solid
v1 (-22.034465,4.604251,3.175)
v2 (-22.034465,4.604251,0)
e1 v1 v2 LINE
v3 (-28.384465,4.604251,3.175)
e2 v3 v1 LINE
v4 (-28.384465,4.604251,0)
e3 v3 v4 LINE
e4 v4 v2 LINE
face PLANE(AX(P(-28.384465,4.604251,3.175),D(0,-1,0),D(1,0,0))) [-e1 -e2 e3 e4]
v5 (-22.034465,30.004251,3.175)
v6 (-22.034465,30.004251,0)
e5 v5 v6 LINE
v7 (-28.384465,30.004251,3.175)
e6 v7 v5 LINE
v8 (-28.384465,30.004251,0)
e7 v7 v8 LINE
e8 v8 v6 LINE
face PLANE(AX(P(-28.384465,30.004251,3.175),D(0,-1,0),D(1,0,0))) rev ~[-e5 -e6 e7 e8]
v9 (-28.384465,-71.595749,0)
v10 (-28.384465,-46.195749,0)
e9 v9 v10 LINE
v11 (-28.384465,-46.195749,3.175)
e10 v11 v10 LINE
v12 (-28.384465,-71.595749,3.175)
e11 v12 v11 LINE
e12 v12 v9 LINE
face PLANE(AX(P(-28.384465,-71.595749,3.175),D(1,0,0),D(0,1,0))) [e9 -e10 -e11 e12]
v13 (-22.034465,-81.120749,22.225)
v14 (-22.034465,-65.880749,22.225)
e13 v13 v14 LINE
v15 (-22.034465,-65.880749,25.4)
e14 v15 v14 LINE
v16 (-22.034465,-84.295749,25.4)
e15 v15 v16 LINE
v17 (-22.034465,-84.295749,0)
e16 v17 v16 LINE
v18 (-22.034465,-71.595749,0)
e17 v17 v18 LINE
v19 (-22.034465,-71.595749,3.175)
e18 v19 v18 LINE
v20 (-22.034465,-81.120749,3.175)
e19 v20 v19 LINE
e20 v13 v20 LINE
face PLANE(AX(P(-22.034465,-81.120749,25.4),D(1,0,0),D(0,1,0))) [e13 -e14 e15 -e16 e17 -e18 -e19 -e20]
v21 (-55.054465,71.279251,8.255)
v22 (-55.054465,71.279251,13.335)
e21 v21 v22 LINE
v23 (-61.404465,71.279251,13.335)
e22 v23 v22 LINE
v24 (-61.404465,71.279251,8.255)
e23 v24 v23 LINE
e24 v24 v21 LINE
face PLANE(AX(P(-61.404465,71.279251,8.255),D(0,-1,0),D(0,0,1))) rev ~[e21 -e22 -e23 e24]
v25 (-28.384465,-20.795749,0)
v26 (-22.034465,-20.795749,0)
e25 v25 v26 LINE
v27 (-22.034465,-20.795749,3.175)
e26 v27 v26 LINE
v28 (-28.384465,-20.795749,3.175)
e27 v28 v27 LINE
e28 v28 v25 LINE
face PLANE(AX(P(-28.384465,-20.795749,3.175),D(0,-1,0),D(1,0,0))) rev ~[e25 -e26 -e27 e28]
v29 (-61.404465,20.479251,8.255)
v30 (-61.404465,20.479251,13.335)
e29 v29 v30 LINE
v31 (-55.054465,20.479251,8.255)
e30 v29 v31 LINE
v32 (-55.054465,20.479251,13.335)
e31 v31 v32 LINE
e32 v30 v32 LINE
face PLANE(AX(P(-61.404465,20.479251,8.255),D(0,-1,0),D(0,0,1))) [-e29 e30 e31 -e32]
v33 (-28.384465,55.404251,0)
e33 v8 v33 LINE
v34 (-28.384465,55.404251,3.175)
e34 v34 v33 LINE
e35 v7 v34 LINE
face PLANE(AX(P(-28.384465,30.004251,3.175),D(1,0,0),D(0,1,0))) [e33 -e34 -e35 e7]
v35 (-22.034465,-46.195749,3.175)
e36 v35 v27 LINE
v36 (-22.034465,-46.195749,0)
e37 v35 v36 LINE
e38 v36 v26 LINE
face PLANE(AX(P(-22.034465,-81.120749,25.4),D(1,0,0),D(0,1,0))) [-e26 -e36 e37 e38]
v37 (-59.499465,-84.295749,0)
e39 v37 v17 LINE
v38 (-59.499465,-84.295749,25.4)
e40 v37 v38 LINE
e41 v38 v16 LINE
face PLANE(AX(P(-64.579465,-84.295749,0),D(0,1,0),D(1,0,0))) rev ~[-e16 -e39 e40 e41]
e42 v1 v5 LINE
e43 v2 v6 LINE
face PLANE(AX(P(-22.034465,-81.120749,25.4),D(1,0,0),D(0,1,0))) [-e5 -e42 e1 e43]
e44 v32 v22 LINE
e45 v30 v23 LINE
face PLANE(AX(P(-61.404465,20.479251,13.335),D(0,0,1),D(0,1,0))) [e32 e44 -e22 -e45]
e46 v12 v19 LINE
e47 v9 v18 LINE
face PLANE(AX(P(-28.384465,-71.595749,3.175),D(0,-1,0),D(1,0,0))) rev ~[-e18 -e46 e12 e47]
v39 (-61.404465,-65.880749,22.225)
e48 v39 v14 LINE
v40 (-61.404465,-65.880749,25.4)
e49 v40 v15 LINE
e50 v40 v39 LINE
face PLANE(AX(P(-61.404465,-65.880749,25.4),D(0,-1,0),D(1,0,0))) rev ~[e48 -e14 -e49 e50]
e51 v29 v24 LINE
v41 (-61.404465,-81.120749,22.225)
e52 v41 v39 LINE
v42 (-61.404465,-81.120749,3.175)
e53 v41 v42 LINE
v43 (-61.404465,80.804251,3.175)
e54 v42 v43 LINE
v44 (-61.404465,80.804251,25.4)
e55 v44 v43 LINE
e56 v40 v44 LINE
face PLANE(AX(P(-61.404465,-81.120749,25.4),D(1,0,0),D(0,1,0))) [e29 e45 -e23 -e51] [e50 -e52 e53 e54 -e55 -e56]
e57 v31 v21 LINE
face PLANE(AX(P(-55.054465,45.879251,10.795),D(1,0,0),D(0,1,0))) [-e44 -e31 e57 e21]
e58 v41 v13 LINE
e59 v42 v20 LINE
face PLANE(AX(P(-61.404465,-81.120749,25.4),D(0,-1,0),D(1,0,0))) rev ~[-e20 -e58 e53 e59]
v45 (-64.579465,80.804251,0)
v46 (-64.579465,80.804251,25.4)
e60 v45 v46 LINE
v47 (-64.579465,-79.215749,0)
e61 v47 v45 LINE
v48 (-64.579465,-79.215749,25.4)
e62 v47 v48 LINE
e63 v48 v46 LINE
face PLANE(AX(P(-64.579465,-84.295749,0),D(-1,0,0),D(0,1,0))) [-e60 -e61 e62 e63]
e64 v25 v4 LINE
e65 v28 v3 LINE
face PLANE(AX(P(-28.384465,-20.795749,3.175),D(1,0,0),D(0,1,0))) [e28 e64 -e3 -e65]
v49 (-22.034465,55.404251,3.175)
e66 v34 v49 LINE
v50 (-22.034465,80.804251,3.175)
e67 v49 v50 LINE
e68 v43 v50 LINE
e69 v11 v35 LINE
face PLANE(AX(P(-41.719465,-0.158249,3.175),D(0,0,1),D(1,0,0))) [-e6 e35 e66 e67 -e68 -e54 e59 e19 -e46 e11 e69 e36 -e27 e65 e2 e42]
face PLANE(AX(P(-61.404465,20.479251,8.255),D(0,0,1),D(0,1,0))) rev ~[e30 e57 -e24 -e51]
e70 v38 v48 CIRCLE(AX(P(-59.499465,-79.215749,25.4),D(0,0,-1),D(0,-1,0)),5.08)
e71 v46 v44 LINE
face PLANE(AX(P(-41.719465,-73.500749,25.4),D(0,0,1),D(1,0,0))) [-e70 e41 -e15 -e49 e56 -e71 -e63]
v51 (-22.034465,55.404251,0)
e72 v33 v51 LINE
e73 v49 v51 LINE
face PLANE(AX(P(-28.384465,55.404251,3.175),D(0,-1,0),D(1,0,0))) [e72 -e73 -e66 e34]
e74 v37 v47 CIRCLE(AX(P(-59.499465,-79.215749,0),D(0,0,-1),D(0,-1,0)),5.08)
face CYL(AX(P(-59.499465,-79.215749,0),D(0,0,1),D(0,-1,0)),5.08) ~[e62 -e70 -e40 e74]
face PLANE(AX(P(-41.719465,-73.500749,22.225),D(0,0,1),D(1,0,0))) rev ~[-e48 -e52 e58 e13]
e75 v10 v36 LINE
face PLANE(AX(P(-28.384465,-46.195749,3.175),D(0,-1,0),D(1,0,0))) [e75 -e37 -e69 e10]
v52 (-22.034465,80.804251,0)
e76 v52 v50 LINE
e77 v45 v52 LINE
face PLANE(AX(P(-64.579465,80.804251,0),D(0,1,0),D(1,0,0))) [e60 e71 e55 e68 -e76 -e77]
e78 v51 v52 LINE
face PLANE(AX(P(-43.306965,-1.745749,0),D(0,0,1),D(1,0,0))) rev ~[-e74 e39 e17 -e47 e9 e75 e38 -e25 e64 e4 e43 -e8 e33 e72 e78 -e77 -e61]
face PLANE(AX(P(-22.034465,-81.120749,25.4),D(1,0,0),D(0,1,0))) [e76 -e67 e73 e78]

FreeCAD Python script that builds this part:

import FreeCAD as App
import Part
import Sketcher
Q = App.Units.Quantity


def edges_at(feature, points):
    """Names of the edges that pass closest to the given points."""
    edges = feature.Shape.Edges
    near = lambda p: min(range(len(edges)), key=lambda i: edges[i].distToShape(Part.Vertex(*p))[0])
    return sorted({f"Edge{near(p) + 1}" for p in points})

doc = App.newDocument("Part")
body = doc.addObject("PartDesign::Body", "Body")

# Sketch on XY plane
sketch1 = body.newObject("Sketcher::SketchObject", "Sketch")
sketch1.AttachmentSupport = (doc.getObject("XY_Plane"), [""])
sketch1.MapMode = "FlatFace"
sketch1.addGeometry([
    Part.LineSegment(App.Vector(-64.579465, 80.804251, 0), App.Vector(-64.579465, -84.295749, 0)),
    Part.LineSegment(App.Vector(-64.579465, -84.295749, 0), App.Vector(-22.034465, -84.295749, 0)),
    Part.LineSegment(App.Vector(-22.034465, -84.295749, 0), App.Vector(-22.034465, 80.804251, 0)),
    Part.LineSegment(App.Vector(-22.034465, 80.804251, 0), App.Vector(-64.579465, 80.804251, 0)),
], False)
sketch1.addConstraint([
    Sketcher.Constraint("Coincident", 0, 2, 1, 1),
    Sketcher.Constraint("Coincident", 1, 2, 2, 1),
    Sketcher.Constraint("Coincident", 2, 2, 3, 1),
    Sketcher.Constraint("Coincident", 3, 2, 0, 1),
    Sketcher.Constraint("Vertical", 0),
    Sketcher.Constraint("Horizontal", 1),
    Sketcher.Constraint("Vertical", 2),
    Sketcher.Constraint("Horizontal", 3),
    Sketcher.Constraint("DistanceY", 0, 2, 0, 1, Q("6.5 in")),
    Sketcher.Constraint("DistanceX", 1, 1, 1, 2, Q("1.675 in")),
    Sketcher.Constraint("DistanceY", 0, 2, -1, 1, 84.295749),
    Sketcher.Constraint("DistanceX", 0, 2, -1, 1, 64.579465),
])
pad1 = body.newObject("PartDesign::Pad", "Pad")
pad1.Profile = sketch1
pad1.Length = Q("1 in")

# Sketch on XY plane
sketch2 = body.newObject("Sketcher::SketchObject", "Sketch001")
sketch2.AttachmentSupport = (doc.getObject("XY_Plane"), [""])
sketch2.MapMode = "FlatFace"
sketch2.AttachmentOffset = App.Placement(App.Vector(0, 0, 1 * 25.4), App.Rotation())
sketch2.addGeometry([
    Part.LineSegment(App.Vector(-61.404465, 80.804251, 0), App.Vector(-61.404465, -81.120749, 0)),
    Part.LineSegment(App.Vector(-61.404465, -81.120749, 0), App.Vector(-22.034465, -81.120749, 0)),
    Part.LineSegment(App.Vector(-22.034465, -81.120749, 0), App.Vector(-22.034465, 80.804251, 0)),
    Part.LineSegment(App.Vector(-22.034465, 80.804251, 0), App.Vector(-61.404465, 80.804251, 0)),
], False)
sketch2.addConstraint([
    Sketcher.Constraint("Coincident", 0, 2, 1, 1),
    Sketcher.Constraint("Coincident", 1, 2, 2, 1),
    Sketcher.Constraint("Coincident", 2, 2, 3, 1),
    Sketcher.Constraint("Coincident", 3, 2, 0, 1),
    Sketcher.Constraint("Vertical", 0),
    Sketcher.Constraint("Horizontal", 1),
    Sketcher.Constraint("Vertical", 2),
    Sketcher.Constraint("Horizontal", 3),
    Sketcher.Constraint("DistanceX", 1, 1, 1, 2, Q("1.55 in")),
    Sketcher.Constraint("DistanceY", 0, 2, 0, 1, Q("6.375 in")),
    Sketcher.Constraint("DistanceY", 0, 2, -1, 1, 81.120749),
    Sketcher.Constraint("DistanceX", 0, 2, -1, 1, 61.404465),
])
pocket1 = body.newObject("PartDesign::Pocket", "Pocket")
pocket1.Profile = sketch2
pocket1.Length = Q("0.875 in")

# Sketch on XY plane
sketch3 = body.newObject("Sketcher::SketchObject", "Sketch002")
sketch3.AttachmentSupport = (doc.getObject("XY_Plane"), [""])
sketch3.MapMode = "FlatFace"
sketch3.AttachmentOffset = App.Placement(App.Vector(0, 0, 1 * 25.4), App.Rotation())
sketch3.addGeometry([
    Part.LineSegment(App.Vector(-61.404465, -65.880749, 0), App.Vector(-61.404465, -81.120749, 0)),
    Part.LineSegment(App.Vector(-61.404465, -81.120749, 0), App.Vector(-22.034465, -81.120749, 0)),
    Part.LineSegment(App.Vector(-22.034465, -81.120749, 0), App.Vector(-22.034465, -65.880749, 0)),
    Part.LineSegment(App.Vector(-22.034465, -65.880749, 0), App.Vector(-61.404465, -65.880749, 0)),
], False)
sketch3.addConstraint([
    Sketcher.Constraint("Coincident", 0, 2, 1, 1),
    Sketcher.Constraint("Coincident", 1, 2, 2, 1),
    Sketcher.Constraint("Coincident", 2, 2, 3, 1),
    Sketcher.Constraint("Coincident", 3, 2, 0, 1),
    Sketcher.Constraint("Vertical", 0),
    Sketcher.Constraint("Horizontal", 1),
    Sketcher.Constraint("Vertical", 2),
    Sketcher.Constraint("Horizontal", 3),
    Sketcher.Constraint("DistanceY", 0, 2, 0, 1, Q("0.6 in")),
    Sketcher.Constraint("DistanceX", 1, 1, 1, 2, Q("1.55 in")),
    Sketcher.Constraint("DistanceY", 0, 2, -1, 1, 81.120749),
    Sketcher.Constraint("DistanceX", 0, 2, -1, 1, 61.404465),
])
pad2 = body.newObject("PartDesign::Pad", "Pad001")
pad2.Profile = sketch3
pad2.Length = Q("0.125 in")
pad2.Reversed = True

# Sketch on YZ plane
sketch4 = body.newObject("Sketcher::SketchObject", "Sketch003")
sketch4.AttachmentSupport = (doc.getObject("YZ_Plane"), [""])
sketch4.MapMode = "FlatFace"
sketch4.AttachmentOffset = App.Placement(App.Vector(0, 0, -61.404465), App.Rotation())
sketch4.addGeometry([
    Part.LineSegment(App.Vector(20.479251, 13.335, 0), App.Vector(20.479251, 8.255, 0)),
    Part.LineSegment(App.Vector(20.479251, 8.255, 0), App.Vector(71.279251, 8.255, 0)),
    Part.LineSegment(App.Vector(71.279251, 8.255, 0), App.Vector(71.279251, 13.335, 0)),
    Part.LineSegment(App.Vector(71.279251, 13.335, 0), App.Vector(20.479251, 13.335, 0)),
], False)
sketch4.addConstraint([
    Sketcher.Constraint("Coincident", 0, 2, 1, 1),
    Sketcher.Constraint("Coincident", 1, 2, 2, 1),
    Sketcher.Constraint("Coincident", 2, 2, 3, 1),
    Sketcher.Constraint("Coincident", 3, 2, 0, 1),
    Sketcher.Constraint("Vertical", 0),
    Sketcher.Constraint("Horizontal", 1),
    Sketcher.Constraint("Vertical", 2),
    Sketcher.Constraint("Horizontal", 3),
    Sketcher.Constraint("DistanceX", 1, 1, 1, 2, Q("2 in")),
    Sketcher.Constraint("DistanceY", 0, 2, 0, 1, Q("0.2 in")),
    Sketcher.Constraint("DistanceY", -1, 1, 0, 2, Q("0.325 in")),
    Sketcher.Constraint("DistanceX", -1, 1, 0, 2, 20.479251),
])
pad3 = body.newObject("PartDesign::Pad", "Pad002")
pad3.Profile = sketch4
pad3.Length = Q("0.25 in")

# Sketch on XY plane
sketch5 = body.newObject("Sketcher::SketchObject", "Sketch004")
sketch5.AttachmentSupport = (doc.getObject("XY_Plane"), [""])
sketch5.MapMode = "FlatFace"
sketch5.AttachmentOffset = App.Placement(App.Vector(0, 0, 0.125 * 25.4), App.Rotation())
sketch5.addGeometry([
    Part.LineSegment(App.Vector(-28.384465, -46.195749, 0), App.Vector(-28.384465, -71.595749, 0)),  # 0
    Part.LineSegment(App.Vector(-28.384465, -71.595749, 0), App.Vector(-22.034465, -71.595749, 0)),  # 1
    Part.LineSegment(App.Vector(-22.034465, -71.595749, 0), App.Vector(-22.034465, -46.195749, 0)),  # 2
    Part.LineSegment(App.Vector(-22.034465, -46.195749, 0), App.Vector(-28.384465, -46.195749, 0)),  # 3
    Part.LineSegment(App.Vector(-28.384465, 4.604251, 0), App.Vector(-28.384465, -20.795749, 0)),  # 4
    Part.LineSegment(App.Vector(-28.384465, -20.795749, 0), App.Vector(-22.034465, -20.795749, 0)),  # 5
    Part.LineSegment(App.Vector(-22.034465, -20.795749, 0), App.Vector(-22.034465, 4.604251, 0)),  # 6
    Part.LineSegment(App.Vector(-22.034465, 4.604251, 0), App.Vector(-28.384465, 4.604251, 0)),  # 7
    Part.LineSegment(App.Vector(-28.384465, 55.404251, 0), App.Vector(-28.384465, 30.004251, 0)),  # 8
    Part.LineSegment(App.Vector(-28.384465, 30.004251, 0), App.Vector(-22.034465, 30.004251, 0)),  # 9
    Part.LineSegment(App.Vector(-22.034465, 30.004251, 0), App.Vector(-22.034465, 55.404251, 0)),  # 10
    Part.LineSegment(App.Vector(-22.034465, 55.404251, 0), App.Vector(-28.384465, 55.404251, 0)),  # 11
], False)
sketch5.addConstraint([
    Sketcher.Constraint("Coincident", 0, 2, 1, 1),
    Sketcher.Constraint("Coincident", 1, 2, 2, 1),
    Sketcher.Constraint("Coincident", 2, 2, 3, 1),
    Sketcher.Constraint("Coincident", 3, 2, 0, 1),
    Sketcher.Constraint("Coincident", 4, 2, 5, 1),
    Sketcher.Constraint("Coincident", 5, 2, 6, 1),
    Sketcher.Constraint("Coincident", 6, 2, 7, 1),
    Sketcher.Constraint("Coincident", 7, 2, 4, 1),
    Sketcher.Constraint("Coincident", 8, 2, 9, 1),
    Sketcher.Constraint("Coincident", 9, 2, 10, 1),
    Sketcher.Constraint("Coincident", 10, 2, 11, 1),
    Sketcher.Constraint("Coincident", 11, 2, 8, 1),
    Sketcher.Constraint("Vertical", 0),
    Sketcher.Constraint("Horizontal", 1),
    Sketcher.Constraint("Vertical", 2),
    Sketcher.Constraint("Horizontal", 3),
    Sketcher.Constraint("Vertical", 4),
    Sketcher.Constraint("Horizontal", 5),
    Sketcher.Constraint("Vertical", 6),
    Sketcher.Constraint("Horizontal", 7),
    Sketcher.Constraint("Vertical", 8),
    Sketcher.Constraint("Horizontal", 9),
    Sketcher.Constraint("Vertical", 10),
    Sketcher.Constraint("Horizontal", 11),
    Sketcher.Constraint("Vertical", 3, 2, 4, 2),
    Sketcher.Constraint("Vertical", 2, 2, 5, 2),
    Sketcher.Constraint("Vertical", 7, 2, 8, 2),
    Sketcher.Constraint("Vertical", 6, 2, 9, 2),
    Sketcher.Constraint("Equal", 2, 4),
    Sketcher.Constraint("Equal", 6, 8),
    Sketcher.Constraint("DistanceY", 0, 2, 0, 1, Q("1 in")),
    Sketcher.Constraint("DistanceY", 3, 2, 4, 2, Q("1 in")),
    Sketcher.Constraint("DistanceY", 7, 2, 8, 2, Q("1 in")),
    Sketcher.Constraint("DistanceX", 1, 1, 1, 2, Q("0.25 in")),
    Sketcher.Constraint("DistanceY", 0, 2, -1, 1, 71.595749),
    Sketcher.Constraint("DistanceX", 0, 2, -1, 1, 28.384465),
])
pocket2 = body.newObject("PartDesign::Pocket", "Pocket001")
pocket2.Profile = sketch5
pocket2.Type = "ThroughAll"
doc.recompute()

fillet = body.newObject("PartDesign::Fillet", "Fillet")
fillet.Base = (pocket2, edges_at(pocket2, [(-64.579, -84.296, 12.7)]))
fillet.Radius = Q("0.2 in")

doc.recompute()
